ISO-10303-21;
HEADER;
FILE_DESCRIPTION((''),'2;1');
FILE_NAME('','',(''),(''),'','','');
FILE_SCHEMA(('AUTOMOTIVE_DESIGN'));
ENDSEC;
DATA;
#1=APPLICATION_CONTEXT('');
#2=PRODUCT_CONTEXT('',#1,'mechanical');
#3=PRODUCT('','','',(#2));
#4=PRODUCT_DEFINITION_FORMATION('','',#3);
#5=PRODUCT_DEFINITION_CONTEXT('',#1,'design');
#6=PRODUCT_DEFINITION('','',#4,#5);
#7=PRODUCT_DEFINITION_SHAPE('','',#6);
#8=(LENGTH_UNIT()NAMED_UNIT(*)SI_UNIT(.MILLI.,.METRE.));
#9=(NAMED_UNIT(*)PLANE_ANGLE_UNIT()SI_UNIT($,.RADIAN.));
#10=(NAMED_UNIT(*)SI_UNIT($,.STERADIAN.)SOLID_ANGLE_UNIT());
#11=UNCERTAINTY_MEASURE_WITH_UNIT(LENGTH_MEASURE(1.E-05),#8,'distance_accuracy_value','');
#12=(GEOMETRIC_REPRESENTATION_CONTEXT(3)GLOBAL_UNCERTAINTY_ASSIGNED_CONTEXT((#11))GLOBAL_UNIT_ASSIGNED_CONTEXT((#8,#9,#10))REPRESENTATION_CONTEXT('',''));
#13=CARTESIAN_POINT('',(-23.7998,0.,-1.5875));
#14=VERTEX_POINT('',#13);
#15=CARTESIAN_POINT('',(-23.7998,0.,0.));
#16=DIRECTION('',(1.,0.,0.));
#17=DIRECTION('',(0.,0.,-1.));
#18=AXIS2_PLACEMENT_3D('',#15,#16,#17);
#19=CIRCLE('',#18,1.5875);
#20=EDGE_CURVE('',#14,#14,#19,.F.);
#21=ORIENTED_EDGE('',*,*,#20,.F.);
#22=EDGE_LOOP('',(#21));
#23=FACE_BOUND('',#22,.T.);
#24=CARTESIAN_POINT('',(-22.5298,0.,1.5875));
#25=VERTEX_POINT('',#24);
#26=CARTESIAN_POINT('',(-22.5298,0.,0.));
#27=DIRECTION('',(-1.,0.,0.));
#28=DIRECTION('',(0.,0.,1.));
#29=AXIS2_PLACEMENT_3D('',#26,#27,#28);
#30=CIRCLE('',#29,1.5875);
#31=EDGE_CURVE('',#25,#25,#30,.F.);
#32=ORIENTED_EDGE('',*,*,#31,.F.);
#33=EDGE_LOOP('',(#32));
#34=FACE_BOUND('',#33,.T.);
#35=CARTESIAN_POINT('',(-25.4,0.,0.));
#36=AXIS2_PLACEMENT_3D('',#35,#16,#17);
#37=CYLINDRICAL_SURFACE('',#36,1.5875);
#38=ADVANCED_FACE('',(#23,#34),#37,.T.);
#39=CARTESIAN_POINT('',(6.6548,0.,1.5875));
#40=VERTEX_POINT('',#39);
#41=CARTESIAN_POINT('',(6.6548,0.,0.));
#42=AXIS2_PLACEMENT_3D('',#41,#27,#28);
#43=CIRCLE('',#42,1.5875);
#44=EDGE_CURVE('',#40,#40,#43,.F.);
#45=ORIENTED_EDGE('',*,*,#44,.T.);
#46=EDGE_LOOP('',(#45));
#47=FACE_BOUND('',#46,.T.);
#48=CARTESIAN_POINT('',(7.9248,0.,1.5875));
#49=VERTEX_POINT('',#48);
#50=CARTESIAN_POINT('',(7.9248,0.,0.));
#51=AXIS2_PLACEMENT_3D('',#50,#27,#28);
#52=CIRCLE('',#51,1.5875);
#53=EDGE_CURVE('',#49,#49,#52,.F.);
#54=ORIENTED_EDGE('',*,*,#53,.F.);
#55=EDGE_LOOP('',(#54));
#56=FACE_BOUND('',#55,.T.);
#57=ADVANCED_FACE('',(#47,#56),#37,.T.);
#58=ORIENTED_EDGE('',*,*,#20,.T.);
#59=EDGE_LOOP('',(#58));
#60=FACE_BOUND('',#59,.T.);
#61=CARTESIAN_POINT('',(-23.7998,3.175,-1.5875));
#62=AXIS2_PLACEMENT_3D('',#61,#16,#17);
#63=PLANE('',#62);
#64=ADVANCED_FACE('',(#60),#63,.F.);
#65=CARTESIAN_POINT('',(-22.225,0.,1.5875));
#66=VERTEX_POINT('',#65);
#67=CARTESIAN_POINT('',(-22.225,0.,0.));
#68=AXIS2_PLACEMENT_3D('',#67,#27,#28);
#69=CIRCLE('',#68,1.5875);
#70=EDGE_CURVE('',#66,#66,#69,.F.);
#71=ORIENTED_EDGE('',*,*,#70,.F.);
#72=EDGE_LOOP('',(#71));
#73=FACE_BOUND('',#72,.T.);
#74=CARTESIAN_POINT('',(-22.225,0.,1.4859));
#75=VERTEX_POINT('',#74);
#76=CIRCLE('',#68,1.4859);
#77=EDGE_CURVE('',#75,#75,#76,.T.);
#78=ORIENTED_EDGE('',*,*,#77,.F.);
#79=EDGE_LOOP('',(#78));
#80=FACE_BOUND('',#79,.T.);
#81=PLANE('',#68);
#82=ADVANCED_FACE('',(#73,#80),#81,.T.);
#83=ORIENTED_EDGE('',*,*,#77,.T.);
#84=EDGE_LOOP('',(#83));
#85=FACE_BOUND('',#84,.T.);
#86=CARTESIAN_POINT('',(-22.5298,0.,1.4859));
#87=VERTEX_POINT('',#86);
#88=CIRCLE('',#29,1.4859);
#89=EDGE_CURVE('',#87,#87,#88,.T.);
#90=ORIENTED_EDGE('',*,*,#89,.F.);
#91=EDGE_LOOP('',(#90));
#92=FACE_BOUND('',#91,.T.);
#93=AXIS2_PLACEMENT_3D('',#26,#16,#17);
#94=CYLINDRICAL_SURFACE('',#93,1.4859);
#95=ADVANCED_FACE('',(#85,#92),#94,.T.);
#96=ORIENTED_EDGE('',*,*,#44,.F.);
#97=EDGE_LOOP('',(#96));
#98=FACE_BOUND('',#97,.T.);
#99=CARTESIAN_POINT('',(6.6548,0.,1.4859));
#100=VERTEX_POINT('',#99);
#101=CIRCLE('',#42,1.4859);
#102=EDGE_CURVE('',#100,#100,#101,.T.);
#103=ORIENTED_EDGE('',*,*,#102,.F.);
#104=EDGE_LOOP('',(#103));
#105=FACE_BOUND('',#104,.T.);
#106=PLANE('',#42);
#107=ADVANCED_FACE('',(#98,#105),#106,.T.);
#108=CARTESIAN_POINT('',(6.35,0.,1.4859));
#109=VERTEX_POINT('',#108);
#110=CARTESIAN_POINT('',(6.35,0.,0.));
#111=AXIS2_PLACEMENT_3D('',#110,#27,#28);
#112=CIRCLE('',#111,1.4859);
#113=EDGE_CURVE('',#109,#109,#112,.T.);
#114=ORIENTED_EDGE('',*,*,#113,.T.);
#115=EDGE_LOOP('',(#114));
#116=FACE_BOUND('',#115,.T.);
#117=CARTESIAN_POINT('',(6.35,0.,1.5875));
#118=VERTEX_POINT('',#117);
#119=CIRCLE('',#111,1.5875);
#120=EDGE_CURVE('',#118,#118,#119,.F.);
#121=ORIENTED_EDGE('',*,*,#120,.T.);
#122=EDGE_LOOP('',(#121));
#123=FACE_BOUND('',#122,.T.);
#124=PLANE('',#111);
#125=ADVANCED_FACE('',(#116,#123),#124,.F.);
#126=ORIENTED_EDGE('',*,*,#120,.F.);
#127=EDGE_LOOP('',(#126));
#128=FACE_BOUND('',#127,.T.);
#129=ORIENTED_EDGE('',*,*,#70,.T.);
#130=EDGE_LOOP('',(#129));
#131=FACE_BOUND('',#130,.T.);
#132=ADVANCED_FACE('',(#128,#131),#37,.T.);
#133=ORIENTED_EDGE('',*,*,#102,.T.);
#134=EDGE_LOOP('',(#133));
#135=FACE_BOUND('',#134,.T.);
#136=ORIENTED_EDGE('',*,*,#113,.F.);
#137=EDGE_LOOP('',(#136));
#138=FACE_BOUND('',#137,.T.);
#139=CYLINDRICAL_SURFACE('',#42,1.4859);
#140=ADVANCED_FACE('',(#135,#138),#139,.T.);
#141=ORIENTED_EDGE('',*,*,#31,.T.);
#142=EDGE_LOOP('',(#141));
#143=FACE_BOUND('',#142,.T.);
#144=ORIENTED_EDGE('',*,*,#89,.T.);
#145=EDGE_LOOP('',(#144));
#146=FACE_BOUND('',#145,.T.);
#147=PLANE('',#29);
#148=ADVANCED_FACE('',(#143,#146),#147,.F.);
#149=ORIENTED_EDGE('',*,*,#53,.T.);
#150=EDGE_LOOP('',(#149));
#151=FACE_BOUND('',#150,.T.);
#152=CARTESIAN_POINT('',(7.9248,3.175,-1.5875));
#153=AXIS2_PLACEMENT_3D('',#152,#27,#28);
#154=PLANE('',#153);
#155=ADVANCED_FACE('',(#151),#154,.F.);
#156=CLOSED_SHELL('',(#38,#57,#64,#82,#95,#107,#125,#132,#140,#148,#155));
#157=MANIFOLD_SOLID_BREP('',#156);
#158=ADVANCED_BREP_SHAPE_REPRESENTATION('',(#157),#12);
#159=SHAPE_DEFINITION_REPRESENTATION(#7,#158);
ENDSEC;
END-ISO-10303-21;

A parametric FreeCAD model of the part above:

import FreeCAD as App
import Part
import Sketcher
Q = App.Units.Quantity


def edges_at(feature, points):
    """Names of the edges that pass closest to the given points."""
    edges = feature.Shape.Edges
    near = lambda p: min(range(len(edges)), key=lambda i: edges[i].distToShape(Part.Vertex(*p))[0])
    return sorted({f"Edge{near(p) + 1}" for p in points})


def add_polygon(sketch, points):
    """Adds a closed chain of lines whose ends are joined by coincident constraints."""
    first, n = sketch.GeometryCount, len(points)
    for a, b in zip(points, points[1:] + points[:1]):
        sketch.addGeometry(Part.LineSegment(App.Vector(*a, 0), App.Vector(*b, 0)), False)
    for i in range(n):
        sketch.addConstraint(Sketcher.Constraint("Coincident", first + i, 2, first + (i + 1) % n, 1))

doc = App.newDocument("Part")
body = doc.addObject("PartDesign::Body", "Body")

sketch1 = body.newObject("Sketcher::SketchObject", "Sketch")
sketch1.AttachmentSupport = (doc.getObject("YZ_Plane"), [""])
sketch1.MapMode = "FlatFace"
sketch1.addGeometry(Part.Circle(App.Vector(0, 0, 0), App.Vector(0, 0, 1), 1.5875), False)
sketch1.addConstraint([
    Sketcher.Constraint("Coincident", 0, 3, -1, 1),
    Sketcher.Constraint("Diameter", 0, Q("0.125 in")),
])
pad1 = body.newObject("PartDesign::Pad", "Pad")
pad1.Profile = sketch1
pad1.Type = "TwoLengths"
pad1.Length = Q("1 in")
pad1.Length2 = Q("1 in")
doc.recompute()

chamfer = body.newObject("PartDesign::Chamfer", "Chamfer")
chamfer.Base = (pad1, edges_at(pad1, [(-25.4, 0, 1.587), (25.4, 0, 1.587)]))
chamfer.Size = Q("0.0125 in")

sketch2 = body.newObject("Sketcher::SketchObject", "Sketch001")
sketch2.AttachmentSupport = (doc.getObject("YZ_Plane"), [""])
sketch2.MapMode = "FlatFace"
sketch2.AttachmentOffset = App.Placement(App.Vector(0, 0, -0.875 * 25.4), App.Rotation())
add_polygon(sketch2, [(7.688, -7.688), (-7.688, -7.688), (-7.688, 7.688), (7.688, 7.688)])
sketch2.addGeometry(Part.Circle(App.Vector(0, 0, 0), App.Vector(0, 0, 1), 1.4859), False)
sketch2.addConstraint([
    Sketcher.Constraint("Horizontal", 0),
    Sketcher.Constraint("Vertical", 1),
    Sketcher.Constraint("Horizontal", 2),
    Sketcher.Constraint("Vertical", 3),
    Sketcher.Constraint("Coincident", 4, 3, -1, 1),
    Sketcher.Constraint("Symmetric", 0, 2, 2, 2, -1, 1),
    Sketcher.Constraint("Equal", 2, 1),
    Sketcher.Constraint("Diameter", 4, Q("0.117 in")),
    Sketcher.Constraint("DistanceX", 0, 2, 0, 1, 15.376),
])
pocket1 = body.newObject("PartDesign::Pocket", "Pocket")
pocket1.Profile = sketch2
pocket1.Length = Q("0.012 in")

sketch3 = body.newObject("Sketcher::SketchObject", "Sketch002")
sketch3.AttachmentSupport = (doc.getObject("YZ_Plane"), [""])
sketch3.MapMode = "FlatFace"
sketch3.AttachmentOffset = App.Placement(App.Vector(0, 0, 0.25 * 25.4), App.Rotation())
add_polygon(sketch3, [(7.688, -7.688), (-7.688, -7.688), (-7.688, 7.688), (7.688, 7.688)])
sketch3.addGeometry(Part.Circle(App.Vector(0, 0, 0), App.Vector(0, 0, 1), 1.4859), False)
sketch3.addConstraint([
    Sketcher.Constraint("Horizontal", 0),
    Sketcher.Constraint("Vertical", 1),
    Sketcher.Constraint("Horizontal", 2),
    Sketcher.Constraint("Vertical", 3),
    Sketcher.Constraint("Coincident", 4, 3, -1, 1),
    Sketcher.Constraint("Symmetric", 0, 2, 2, 2, -1, 1),
    Sketcher.Constraint("Equal", 2, 1),
    Sketcher.Constraint("Diameter", 4, Q("0.117 in")),
    Sketcher.Constraint("DistanceX", 0, 2, 0, 1, 15.376),
])
pocket2 = body.newObject("PartDesign::Pocket", "Pocket001")
pocket2.Profile = sketch3
pocket2.Length = Q("0.012 in")
pocket2.Reversed = True

sketch4 = body.newObject("Sketcher::SketchObject", "Sketch003")
sketch4.AttachmentSupport = (doc.getObject("XY_Plane"), [""])
sketch4.MapMode = "FlatFace"
add_polygon(sketch4, [(7.9248, 3.175), (7.9248, -3.175), (25.4, -3.175), (25.4, 3.175)])
add_polygon(sketch4, [(-25.4, 3.175), (-25.4, -3.175), (-23.7998, -3.175), (-23.7998, 3.175)])
sketch4.addConstraint([
    Sketcher.Constraint("Vertical", 0),
    Sketcher.Constraint("Horizontal", 1),
    Sketcher.Constraint("Vertical", 2),
    Sketcher.Constraint("Horizontal", 3),
    Sketcher.Constraint("Vertical", 4),
    Sketcher.Constraint("Horizontal", 5),
    Sketcher.Constraint("Vertical", 6),
    Sketcher.Constraint("Horizontal", 7),
    Sketcher.Constraint("Symmetric", 2, 2, 4, 2, -1, 1),
    Sketcher.Constraint("Horizontal", 1, 2, 4, 2),
    Sketcher.Constraint("Horizontal", 3, 2, 6, 2),
    Sketcher.Constraint("DistanceX", -1, 1, 1, 2, Q("1 in")),
    Sketcher.Constraint("DistanceY", 0, 2, 0, 1, Q("0.25 in")),
    Sketcher.Constraint("DistanceX", 1, 1, 1, 2, Q("0.688 in")),
    Sketcher.Constraint("DistanceX", 5, 1, 5, 2, Q("0.063 in")),
])
pocket3 = body.newObject("PartDesign::Pocket", "Pocket002")
pocket3.Profile = sketch4
pocket3.Type = "ThroughAll"
pocket3.Midplane = True

doc.recompute()
